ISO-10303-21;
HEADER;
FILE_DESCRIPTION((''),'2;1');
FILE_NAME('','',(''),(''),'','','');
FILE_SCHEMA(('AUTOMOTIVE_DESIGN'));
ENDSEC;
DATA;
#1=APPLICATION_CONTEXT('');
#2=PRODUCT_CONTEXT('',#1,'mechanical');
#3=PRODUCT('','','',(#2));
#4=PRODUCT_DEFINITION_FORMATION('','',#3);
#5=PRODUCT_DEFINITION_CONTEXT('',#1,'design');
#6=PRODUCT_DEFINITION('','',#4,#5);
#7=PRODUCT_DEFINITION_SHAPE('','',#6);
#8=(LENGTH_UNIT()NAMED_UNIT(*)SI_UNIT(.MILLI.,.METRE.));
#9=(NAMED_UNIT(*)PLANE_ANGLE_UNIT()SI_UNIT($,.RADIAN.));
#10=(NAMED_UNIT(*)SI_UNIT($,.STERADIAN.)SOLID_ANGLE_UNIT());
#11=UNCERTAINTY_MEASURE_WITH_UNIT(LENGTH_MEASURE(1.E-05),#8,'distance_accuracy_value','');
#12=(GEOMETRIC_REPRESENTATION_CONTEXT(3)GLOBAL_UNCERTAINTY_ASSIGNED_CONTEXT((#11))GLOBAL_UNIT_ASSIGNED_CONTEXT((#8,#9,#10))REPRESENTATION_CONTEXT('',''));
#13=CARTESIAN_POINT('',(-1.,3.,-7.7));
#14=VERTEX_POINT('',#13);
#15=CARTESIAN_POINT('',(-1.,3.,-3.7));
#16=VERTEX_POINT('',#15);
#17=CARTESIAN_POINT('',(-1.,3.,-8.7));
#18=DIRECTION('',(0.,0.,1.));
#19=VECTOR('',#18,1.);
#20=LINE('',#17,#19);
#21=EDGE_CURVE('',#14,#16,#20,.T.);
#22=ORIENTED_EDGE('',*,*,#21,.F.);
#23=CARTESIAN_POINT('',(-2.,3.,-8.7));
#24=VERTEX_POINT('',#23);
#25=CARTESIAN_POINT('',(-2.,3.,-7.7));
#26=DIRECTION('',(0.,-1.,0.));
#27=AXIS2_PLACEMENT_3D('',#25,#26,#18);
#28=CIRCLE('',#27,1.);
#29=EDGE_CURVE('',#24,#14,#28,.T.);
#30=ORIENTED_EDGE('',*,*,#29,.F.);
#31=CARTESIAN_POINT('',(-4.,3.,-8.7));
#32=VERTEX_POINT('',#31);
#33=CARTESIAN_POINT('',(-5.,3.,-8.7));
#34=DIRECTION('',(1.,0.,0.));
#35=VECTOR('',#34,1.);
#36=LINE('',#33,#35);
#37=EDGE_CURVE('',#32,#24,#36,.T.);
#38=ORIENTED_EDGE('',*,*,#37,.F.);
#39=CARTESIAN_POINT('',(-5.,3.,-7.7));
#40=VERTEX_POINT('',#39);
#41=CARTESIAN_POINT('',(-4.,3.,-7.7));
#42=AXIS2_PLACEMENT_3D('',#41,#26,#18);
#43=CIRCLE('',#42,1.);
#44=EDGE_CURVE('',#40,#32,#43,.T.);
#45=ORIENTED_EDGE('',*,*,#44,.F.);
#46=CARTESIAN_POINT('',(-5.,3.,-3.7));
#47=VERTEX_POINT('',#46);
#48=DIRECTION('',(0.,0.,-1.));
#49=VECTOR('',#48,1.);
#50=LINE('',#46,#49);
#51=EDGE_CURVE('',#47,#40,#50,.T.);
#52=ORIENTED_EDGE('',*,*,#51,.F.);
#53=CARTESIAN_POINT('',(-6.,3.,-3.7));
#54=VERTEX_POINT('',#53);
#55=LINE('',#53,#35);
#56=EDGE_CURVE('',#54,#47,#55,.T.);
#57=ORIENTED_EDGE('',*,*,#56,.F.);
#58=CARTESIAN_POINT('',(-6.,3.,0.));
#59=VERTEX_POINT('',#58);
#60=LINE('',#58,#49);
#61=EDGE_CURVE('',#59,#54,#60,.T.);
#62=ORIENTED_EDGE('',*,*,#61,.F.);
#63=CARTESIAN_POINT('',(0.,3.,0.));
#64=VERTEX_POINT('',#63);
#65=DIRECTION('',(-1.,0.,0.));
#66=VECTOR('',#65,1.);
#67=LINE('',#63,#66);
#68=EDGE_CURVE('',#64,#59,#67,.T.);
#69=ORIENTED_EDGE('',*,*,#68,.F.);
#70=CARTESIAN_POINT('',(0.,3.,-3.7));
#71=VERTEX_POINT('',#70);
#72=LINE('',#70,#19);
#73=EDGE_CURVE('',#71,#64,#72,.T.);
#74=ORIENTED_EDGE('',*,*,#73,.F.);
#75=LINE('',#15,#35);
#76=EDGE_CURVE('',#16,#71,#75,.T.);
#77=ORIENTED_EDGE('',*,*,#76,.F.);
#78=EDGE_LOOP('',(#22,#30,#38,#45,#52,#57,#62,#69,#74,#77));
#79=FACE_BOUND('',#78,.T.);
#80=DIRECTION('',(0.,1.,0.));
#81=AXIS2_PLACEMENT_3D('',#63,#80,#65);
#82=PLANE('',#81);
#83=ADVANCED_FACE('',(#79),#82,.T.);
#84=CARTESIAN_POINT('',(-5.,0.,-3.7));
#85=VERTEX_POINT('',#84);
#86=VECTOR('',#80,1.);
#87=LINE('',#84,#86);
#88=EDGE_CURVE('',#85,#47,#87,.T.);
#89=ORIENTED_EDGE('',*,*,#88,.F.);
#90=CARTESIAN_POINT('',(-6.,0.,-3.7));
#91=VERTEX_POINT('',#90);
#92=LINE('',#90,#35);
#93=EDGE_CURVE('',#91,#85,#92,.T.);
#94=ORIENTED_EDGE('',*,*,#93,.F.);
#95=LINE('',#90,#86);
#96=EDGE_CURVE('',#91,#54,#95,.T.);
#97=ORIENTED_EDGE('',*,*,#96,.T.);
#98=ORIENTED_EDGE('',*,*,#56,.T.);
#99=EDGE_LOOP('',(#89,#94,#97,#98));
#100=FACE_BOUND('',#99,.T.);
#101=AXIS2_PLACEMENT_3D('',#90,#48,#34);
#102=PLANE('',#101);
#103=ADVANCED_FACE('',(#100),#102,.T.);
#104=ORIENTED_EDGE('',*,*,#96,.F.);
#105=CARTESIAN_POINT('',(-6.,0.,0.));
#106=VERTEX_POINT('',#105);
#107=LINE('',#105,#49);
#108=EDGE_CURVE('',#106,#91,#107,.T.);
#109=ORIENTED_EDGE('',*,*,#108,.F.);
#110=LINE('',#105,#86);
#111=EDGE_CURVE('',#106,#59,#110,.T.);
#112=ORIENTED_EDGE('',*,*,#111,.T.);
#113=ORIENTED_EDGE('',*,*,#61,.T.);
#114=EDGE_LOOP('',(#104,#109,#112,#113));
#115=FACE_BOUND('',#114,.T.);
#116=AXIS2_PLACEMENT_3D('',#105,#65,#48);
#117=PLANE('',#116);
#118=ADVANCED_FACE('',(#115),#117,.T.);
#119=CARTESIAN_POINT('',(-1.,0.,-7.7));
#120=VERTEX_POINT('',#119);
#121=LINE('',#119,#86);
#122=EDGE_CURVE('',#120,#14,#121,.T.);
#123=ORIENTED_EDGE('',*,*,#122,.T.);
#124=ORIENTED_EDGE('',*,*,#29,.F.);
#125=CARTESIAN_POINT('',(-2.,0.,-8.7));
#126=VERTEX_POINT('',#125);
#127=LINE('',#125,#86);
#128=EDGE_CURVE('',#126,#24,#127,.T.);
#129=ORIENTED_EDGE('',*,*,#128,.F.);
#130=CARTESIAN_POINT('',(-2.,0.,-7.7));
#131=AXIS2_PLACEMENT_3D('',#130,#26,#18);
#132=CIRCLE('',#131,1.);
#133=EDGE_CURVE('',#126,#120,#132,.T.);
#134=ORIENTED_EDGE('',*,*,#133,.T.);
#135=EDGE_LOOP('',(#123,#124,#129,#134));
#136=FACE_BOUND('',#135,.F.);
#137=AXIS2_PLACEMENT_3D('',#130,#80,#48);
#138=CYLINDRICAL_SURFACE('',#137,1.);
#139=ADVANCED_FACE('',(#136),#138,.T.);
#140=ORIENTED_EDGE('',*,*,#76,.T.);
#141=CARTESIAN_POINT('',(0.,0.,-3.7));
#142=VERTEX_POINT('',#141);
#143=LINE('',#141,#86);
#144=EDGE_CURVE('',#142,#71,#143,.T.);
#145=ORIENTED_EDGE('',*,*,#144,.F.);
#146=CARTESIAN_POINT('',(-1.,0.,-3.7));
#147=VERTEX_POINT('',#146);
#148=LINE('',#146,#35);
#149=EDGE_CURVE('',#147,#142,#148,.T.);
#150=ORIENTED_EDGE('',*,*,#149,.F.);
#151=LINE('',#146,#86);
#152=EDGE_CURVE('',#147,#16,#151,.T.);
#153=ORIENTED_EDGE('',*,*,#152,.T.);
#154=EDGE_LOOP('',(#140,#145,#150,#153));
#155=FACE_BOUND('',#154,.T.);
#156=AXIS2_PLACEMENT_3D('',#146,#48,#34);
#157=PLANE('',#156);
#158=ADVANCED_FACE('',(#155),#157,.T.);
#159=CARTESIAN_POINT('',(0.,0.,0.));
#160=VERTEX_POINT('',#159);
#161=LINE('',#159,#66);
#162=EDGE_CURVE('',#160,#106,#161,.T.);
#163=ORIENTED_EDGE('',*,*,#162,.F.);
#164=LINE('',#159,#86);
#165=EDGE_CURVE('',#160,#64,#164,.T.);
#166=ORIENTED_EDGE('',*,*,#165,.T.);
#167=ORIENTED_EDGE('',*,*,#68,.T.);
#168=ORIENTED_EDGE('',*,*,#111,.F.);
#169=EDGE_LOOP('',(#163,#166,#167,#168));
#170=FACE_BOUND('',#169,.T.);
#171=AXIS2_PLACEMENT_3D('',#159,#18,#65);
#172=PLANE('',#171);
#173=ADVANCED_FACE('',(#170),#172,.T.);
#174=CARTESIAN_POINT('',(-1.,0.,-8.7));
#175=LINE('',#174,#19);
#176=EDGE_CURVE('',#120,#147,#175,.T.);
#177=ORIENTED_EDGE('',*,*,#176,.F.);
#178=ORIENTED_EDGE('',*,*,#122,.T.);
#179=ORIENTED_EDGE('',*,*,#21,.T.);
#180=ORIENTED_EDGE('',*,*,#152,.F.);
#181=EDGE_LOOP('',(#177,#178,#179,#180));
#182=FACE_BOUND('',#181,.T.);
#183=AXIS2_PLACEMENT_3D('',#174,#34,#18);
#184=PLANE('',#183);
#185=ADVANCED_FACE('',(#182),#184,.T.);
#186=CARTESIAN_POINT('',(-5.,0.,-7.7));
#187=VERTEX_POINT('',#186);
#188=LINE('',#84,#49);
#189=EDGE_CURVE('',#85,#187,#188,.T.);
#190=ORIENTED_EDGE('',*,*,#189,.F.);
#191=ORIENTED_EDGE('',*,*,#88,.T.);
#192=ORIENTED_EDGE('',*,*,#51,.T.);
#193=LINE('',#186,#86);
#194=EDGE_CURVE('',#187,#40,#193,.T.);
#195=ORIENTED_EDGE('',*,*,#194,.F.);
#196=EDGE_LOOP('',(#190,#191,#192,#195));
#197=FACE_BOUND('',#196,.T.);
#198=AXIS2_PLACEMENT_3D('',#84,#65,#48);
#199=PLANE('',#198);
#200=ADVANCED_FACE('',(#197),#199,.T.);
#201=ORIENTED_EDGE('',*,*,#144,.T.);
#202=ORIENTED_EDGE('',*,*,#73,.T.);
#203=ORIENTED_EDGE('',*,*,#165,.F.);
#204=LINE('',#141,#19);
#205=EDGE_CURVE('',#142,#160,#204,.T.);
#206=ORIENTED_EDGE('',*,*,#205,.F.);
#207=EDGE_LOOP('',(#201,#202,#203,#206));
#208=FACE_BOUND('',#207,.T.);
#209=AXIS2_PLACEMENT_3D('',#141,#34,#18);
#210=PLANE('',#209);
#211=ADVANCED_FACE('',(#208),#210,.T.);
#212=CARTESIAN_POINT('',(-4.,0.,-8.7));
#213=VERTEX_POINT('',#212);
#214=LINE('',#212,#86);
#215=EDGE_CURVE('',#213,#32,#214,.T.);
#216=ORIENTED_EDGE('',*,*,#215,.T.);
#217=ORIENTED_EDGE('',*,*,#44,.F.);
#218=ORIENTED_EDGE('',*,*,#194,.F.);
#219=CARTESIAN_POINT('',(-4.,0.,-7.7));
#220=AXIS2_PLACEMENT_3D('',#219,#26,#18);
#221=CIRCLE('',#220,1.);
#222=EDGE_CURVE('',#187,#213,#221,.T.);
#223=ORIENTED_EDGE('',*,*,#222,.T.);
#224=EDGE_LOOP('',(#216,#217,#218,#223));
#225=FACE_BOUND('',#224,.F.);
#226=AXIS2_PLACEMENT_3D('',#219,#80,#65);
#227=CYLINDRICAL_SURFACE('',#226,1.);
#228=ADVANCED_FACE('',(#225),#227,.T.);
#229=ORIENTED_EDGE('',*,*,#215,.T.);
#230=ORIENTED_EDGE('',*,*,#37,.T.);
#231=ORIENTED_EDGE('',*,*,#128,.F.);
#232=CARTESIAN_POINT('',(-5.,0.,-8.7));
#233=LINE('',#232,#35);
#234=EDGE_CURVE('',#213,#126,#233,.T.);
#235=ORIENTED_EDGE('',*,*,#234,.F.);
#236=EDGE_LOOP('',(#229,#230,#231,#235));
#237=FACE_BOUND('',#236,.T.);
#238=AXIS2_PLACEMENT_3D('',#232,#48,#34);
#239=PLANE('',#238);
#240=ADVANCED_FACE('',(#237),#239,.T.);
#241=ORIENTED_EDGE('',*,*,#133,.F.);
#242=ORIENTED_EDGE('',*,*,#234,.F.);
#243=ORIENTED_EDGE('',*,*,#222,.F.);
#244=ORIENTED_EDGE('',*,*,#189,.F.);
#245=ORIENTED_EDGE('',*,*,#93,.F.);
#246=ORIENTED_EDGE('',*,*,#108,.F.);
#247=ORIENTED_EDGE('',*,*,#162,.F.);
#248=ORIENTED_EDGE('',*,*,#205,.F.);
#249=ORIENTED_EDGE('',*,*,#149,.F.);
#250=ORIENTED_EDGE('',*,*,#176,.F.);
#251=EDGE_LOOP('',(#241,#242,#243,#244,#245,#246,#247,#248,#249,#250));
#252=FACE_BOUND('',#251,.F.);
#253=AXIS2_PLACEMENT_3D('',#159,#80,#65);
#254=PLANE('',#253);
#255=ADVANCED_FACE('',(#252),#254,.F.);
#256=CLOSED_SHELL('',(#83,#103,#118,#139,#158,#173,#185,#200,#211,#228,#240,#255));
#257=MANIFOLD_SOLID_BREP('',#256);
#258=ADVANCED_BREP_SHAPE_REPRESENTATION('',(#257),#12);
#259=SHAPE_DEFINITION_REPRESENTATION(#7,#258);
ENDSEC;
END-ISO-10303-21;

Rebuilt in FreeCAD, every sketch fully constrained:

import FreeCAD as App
import Part
import Sketcher


def edges_at(feature, points):
    """Names of the edges that pass closest to the given points."""
    edges = feature.Shape.Edges
    near = lambda p: min(range(len(edges)), key=lambda i: edges[i].distToShape(Part.Vertex(*p))[0])
    return sorted({f"Edge{near(p) + 1}" for p in points})


def add_polygon(sketch, points):
    """Adds a closed chain of lines whose ends are joined by coincident constraints."""
    first, n = sketch.GeometryCount, len(points)
    for a, b in zip(points, points[1:] + points[:1]):
        sketch.addGeometry(Part.LineSegment(App.Vector(*a, 0), App.Vector(*b, 0)), False)
    for i in range(n):
        sketch.addConstraint(Sketcher.Constraint("Coincident", first + i, 2, first + (i + 1) % n, 1))

doc = App.newDocument("Part")
body = doc.addObject("PartDesign::Body", "Body")

sketch1 = doc.addObject("Sketcher::SketchObject", "Sketch")
body.addObject(sketch1)
sketch1.AttachmentSupport = (doc.XZ_Plane, [""])
sketch1.MapMode = "FlatFace"
add_polygon(sketch1, [(-6, 0), (0, 0), (0, -3.7), (-1, -3.7), (-1, -8.7), (-5, -8.7), (-5, -3.7), (-6, -3.7)])
sketch1.addConstraint(Sketcher.Constraint("Horizontal", 0))
sketch1.addConstraint(Sketcher.Constraint("Vertical", 1))
sketch1.addConstraint(Sketcher.Constraint("Horizontal", 2))
sketch1.addConstraint(Sketcher.Constraint("Vertical", 3))
sketch1.addConstraint(Sketcher.Constraint("Horizontal", 4))
sketch1.addConstraint(Sketcher.Constraint("Vertical", 5))
sketch1.addConstraint(Sketcher.Constraint("Horizontal", 6))
sketch1.addConstraint(Sketcher.Constraint("Vertical", 7))
sketch1.addConstraint(Sketcher.Constraint("Coincident", 0, 2, -1, 1))
sketch1.addConstraint(Sketcher.Constraint("Horizontal", 2, 2, 5, 2))
sketch1.addConstraint(Sketcher.Constraint("Equal", 2, 6))
sketch1.addConstraint(Sketcher.Constraint("DistanceX", 0, 1, 0, 2, 6.0))
sketch1.addConstraint(Sketcher.Constraint("DistanceX", 2, 2, 2, 1, 1.0))
sketch1.addConstraint(Sketcher.Constraint("DistanceY", 3, 2, 3, 1, 5.0))
sketch1.addConstraint(Sketcher.Constraint("DistanceY", 1, 2, 1, 1, 3.7))
pad1 = doc.addObject("PartDesign::Pad", "Pad")
body.addObject(pad1)
pad1.Profile = sketch1
pad1.Length = 3
pad1.Reversed = True
doc.recompute()

fillet = doc.addObject("PartDesign::Fillet", "Fillet")
body.addObject(fillet)
fillet.Base = (pad1, edges_at(pad1, [(-1, 1.5, -8.7), (-5, 1.5, -8.7)]))
fillet.Radius = 1

doc.recompute()
